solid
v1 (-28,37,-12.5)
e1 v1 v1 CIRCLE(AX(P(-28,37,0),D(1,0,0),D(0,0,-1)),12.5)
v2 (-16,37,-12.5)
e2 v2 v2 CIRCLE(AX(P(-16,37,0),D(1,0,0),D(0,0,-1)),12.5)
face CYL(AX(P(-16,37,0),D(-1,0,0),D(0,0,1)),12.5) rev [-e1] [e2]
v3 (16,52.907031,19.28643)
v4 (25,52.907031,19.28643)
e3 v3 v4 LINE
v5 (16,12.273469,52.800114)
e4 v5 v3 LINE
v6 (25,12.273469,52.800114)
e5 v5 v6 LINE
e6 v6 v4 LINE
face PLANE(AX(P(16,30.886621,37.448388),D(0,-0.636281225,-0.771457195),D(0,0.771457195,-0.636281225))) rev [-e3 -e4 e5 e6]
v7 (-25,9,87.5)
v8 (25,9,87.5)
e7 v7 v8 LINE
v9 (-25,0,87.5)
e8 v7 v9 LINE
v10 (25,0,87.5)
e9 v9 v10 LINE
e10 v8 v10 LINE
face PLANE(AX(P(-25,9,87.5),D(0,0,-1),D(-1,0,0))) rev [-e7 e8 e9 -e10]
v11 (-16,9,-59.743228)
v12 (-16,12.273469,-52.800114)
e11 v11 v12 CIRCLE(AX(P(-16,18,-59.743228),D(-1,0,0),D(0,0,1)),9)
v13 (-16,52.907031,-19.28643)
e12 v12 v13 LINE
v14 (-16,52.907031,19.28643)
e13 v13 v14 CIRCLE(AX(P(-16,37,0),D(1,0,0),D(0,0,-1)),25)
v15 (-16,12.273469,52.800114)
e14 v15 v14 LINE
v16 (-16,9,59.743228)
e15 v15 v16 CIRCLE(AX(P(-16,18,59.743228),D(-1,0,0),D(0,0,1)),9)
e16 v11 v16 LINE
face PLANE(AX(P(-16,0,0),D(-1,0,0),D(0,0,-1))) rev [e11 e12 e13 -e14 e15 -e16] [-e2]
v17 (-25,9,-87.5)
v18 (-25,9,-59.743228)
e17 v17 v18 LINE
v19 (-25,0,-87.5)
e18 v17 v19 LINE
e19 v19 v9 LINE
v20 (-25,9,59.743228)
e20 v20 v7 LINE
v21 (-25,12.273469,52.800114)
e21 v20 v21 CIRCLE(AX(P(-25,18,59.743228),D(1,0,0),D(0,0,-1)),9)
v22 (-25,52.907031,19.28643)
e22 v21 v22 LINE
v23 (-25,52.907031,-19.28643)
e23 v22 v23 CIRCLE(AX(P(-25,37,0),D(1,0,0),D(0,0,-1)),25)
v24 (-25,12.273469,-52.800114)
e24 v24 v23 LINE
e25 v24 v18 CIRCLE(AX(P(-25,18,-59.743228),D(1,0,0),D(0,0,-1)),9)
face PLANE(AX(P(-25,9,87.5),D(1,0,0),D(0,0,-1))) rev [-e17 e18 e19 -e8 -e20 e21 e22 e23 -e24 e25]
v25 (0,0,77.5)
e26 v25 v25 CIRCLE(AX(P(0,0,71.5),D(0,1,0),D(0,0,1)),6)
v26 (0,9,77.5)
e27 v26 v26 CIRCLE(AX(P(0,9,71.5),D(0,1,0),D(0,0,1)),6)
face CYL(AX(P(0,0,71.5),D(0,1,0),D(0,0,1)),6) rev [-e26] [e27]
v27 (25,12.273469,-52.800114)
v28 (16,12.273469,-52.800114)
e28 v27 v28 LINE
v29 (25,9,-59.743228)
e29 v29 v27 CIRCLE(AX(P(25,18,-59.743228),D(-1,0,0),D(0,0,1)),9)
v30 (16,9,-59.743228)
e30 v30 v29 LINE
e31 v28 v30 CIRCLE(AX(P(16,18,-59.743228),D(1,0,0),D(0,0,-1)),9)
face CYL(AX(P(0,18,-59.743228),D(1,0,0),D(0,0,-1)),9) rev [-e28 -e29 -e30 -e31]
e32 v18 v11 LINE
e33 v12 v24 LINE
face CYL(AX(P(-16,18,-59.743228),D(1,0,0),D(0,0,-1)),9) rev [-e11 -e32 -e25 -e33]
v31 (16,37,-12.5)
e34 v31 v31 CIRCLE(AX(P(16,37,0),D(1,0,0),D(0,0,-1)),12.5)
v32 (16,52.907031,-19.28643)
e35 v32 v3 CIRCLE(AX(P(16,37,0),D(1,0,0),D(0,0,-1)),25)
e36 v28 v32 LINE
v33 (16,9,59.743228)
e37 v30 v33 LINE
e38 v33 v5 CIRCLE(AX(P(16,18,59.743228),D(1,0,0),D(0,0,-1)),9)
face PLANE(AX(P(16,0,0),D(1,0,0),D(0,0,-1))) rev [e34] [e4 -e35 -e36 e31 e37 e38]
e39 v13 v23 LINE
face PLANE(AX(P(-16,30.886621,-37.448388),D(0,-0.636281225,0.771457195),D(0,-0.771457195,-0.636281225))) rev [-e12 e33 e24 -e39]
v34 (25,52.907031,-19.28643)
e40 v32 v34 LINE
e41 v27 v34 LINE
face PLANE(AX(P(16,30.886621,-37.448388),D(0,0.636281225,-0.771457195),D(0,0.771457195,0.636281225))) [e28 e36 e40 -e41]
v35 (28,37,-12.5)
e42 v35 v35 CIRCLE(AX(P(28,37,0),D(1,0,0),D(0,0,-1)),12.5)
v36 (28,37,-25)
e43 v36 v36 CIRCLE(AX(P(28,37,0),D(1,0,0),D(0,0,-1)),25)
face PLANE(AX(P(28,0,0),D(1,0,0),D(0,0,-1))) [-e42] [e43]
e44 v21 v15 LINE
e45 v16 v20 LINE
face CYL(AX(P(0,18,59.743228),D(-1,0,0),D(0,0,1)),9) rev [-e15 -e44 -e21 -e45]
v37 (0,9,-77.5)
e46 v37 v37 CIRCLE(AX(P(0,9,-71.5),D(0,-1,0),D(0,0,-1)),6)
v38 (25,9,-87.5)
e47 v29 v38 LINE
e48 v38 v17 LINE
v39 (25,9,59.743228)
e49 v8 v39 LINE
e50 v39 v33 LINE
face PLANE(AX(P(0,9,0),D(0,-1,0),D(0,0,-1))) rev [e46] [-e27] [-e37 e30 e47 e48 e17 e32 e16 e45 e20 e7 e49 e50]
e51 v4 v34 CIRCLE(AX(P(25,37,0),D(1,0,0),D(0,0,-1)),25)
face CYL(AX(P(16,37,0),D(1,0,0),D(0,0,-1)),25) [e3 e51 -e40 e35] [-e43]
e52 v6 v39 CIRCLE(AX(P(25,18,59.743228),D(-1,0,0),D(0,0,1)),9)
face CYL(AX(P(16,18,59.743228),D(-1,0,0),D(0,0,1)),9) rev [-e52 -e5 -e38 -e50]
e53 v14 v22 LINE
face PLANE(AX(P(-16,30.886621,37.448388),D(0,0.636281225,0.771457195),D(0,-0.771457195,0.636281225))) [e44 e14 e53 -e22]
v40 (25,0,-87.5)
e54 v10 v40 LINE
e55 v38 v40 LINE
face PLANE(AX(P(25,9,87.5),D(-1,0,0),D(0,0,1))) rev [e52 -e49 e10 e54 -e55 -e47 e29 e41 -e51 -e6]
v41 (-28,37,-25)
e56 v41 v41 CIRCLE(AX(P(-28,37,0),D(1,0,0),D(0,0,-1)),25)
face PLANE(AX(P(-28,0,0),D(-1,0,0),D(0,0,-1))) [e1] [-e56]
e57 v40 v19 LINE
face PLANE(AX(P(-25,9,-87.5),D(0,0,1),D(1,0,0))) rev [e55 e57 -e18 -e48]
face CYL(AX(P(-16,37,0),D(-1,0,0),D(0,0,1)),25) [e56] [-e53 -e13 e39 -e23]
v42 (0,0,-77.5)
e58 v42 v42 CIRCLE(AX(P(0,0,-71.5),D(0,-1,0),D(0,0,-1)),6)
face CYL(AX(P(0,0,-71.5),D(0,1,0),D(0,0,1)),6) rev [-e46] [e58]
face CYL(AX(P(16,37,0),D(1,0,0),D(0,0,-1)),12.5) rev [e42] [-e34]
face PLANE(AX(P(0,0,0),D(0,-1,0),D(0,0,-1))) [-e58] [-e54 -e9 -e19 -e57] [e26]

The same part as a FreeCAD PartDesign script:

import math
import FreeCAD as App
import Part
import Sketcher
Q = App.Units.Quantity


def edges_at(feature, points):
    """Names of the edges that pass closest to the given points."""
    edges = feature.Shape.Edges
    near = lambda p: min(range(len(edges)), key=lambda i: edges[i].distToShape(Part.Vertex(*p))[0])
    return sorted({f"Edge{near(p) + 1}" for p in points})


def add_polygon(sketch, points):
    """Adds a closed chain of lines whose ends are joined by coincident constraints."""
    first, n = sketch.GeometryCount, len(points)
    for a, b in zip(points, points[1:] + points[:1]):
        sketch.addGeometry(Part.LineSegment(App.Vector(*a, 0), App.Vector(*b, 0)), False)
    for i in range(n):
        sketch.addConstraint(Sketcher.Constraint("Coincident", first + i, 2, first + (i + 1) % n, 1))

doc = App.newDocument("Part")
body = doc.addObject("PartDesign::Body", "Body")

sketch1 = body.newObject("Sketcher::SketchObject", "Sketch")
sketch1.AttachmentSupport = (doc.getObject("XZ_Plane"), [""])
sketch1.MapMode = "FlatFace"
add_polygon(sketch1, [(-25, -88), (-25, 88), (25, 88), (25, -88)])
sketch1.addConstraint([
    Sketcher.Constraint("Vertical", 0),
    Sketcher.Constraint("Horizontal", 1),
    Sketcher.Constraint("Vertical", 2),
    Sketcher.Constraint("Horizontal", 3),
    Sketcher.Constraint("Symmetric", 0, 2, 2, 2, -1, 1),
    Sketcher.Constraint("DistanceX", 1, 1, 1, 2, Q("50 mm")),
    Sketcher.Constraint("DistanceY", 0, 1, 0, 2, Q("175 mm")),
])
pad1 = body.newObject("PartDesign::Pad", "Pad")
pad1.Profile = sketch1
pad1.Length = 9
pad1.Reversed = True

sketch2 = body.newObject("Sketcher::SketchObject", "Sketch001")
sketch2.AttachmentSupport = (doc.getObject("XZ_Plane"), [""])
sketch2.MapMode = "FlatFace"
sketch2.AttachmentOffset = App.Placement(App.Vector(0, 0, -9), App.Rotation())
sketch2.addGeometry(Part.Circle(App.Vector(0, 72, 0), App.Vector(0, 0, 1), 6), False)
sketch2.addConstraint([
    Sketcher.Constraint("PointOnObject", 0, 3, -2),
    Sketcher.Constraint("Diameter", 0, Q("12 mm")),
    Sketcher.Constraint("DistanceY", -1, 1, 0, 3, Q("71.5 mm")),
])
pocket1 = body.newObject("PartDesign::Pocket", "Pocket")
pocket1.Profile = sketch2
pocket1.Type = "ThroughAll"
pocket1.Reversed = True
doc.recompute()

mirrored = body.newObject("PartDesign::Mirrored", "Mirrored")
mirrored.Originals = [pocket1]
mirrored.MirrorPlane = (doc.getObject("XY_Plane"), [""])
body.Tip = mirrored

sketch3 = body.newObject("Sketcher::SketchObject", "Sketch002")
sketch3.AttachmentSupport = (doc.getObject("YZ_Plane"), [""])
sketch3.MapMode = "FlatFace"
sketch3.AttachmentOffset = App.Placement(App.Vector(0, 0, 25), App.Rotation())
sketch3.addGeometry([
    Part.LineSegment(App.Vector(53, 19, 0), App.Vector(9, 56, 0)),
    Part.LineSegment(App.Vector(9, 56, 0), App.Vector(9, -56, 0)),
    Part.LineSegment(App.Vector(9, -56, 0), App.Vector(53, -19, 0)),
    Part.ArcOfCircle(Part.Circle(App.Vector(37, 0, 0), App.Vector(0, 0, 1), 25), math.radians(-90), math.radians(-50)),
    Part.ArcOfCircle(Part.Circle(App.Vector(37, 0, 0), App.Vector(0, 0, 1), 25), math.radians(180), math.radians(270)),
    Part.ArcOfCircle(Part.Circle(App.Vector(37, 0, 0), App.Vector(0, 0, 1), 25), math.radians(50), math.radians(180)),
], False)
sketch3.addConstraint([
    Sketcher.Constraint("Coincident", 0, 2, 1, 1),
    Sketcher.Constraint("Coincident", 1, 2, 2, 1),
    Sketcher.Constraint("Tangent", 2, 2, 3, 2),
    Sketcher.Constraint("Tangent", 3, 1, 4, 2),
    Sketcher.Constraint("Tangent", 4, 1, 5, 2),
    Sketcher.Constraint("Tangent", 5, 1, 0, 1),
    Sketcher.Constraint("Vertical", 1),
    Sketcher.Constraint("Coincident", 5, 3, 3, 3),
    Sketcher.Constraint("Symmetric", 2, 2, 5, 1, -1),
    Sketcher.Constraint("PointOnObject", 4, 1, -1),
    Sketcher.Constraint("Vertical", 5, 3, 3, 1),
    Sketcher.Constraint("Radius", 3, Q("25 mm")),
    Sketcher.Constraint("DistanceY", 1, 2, 1, 1, Q("111 mm")),
    Sketcher.Constraint("DistanceX", -1, 1, 3, 3, Q("37 mm")),
    Sketcher.Constraint("DistanceX", -1, 1, 0, 2, Q("9 mm")),
])
pad2 = body.newObject("PartDesign::Pad", "Pad001")
pad2.Profile = sketch3
pad2.Length = 9
pad2.Reversed = True

sketch4 = body.newObject("Sketcher::SketchObject", "Sketch003")
sketch4.AttachmentSupport = (doc.getObject("YZ_Plane"), [""])
sketch4.MapMode = "FlatFace"
sketch4.AttachmentOffset = App.Placement(App.Vector(0, 0, 28), App.Rotation())
sketch4.addGeometry([
    Part.ArcOfCircle(Part.Circle(App.Vector(37, 0, 0), App.Vector(0, 0, 1), 25), math.radians(50), math.radians(180)),
    Part.ArcOfCircle(Part.Circle(App.Vector(37, 0, 0), App.Vector(0, 0, 1), 25), math.radians(180), math.radians(270)),
    Part.ArcOfCircle(Part.Circle(App.Vector(37, 0, 0), App.Vector(0, 0, 1), 25), math.radians(-90), math.radians(-50)),
    Part.ArcOfCircle(Part.Circle(App.Vector(37, 0, 0), App.Vector(0, 0, 1), 25), math.radians(-50), math.radians(0)),
    Part.ArcOfCircle(Part.Circle(App.Vector(37, 0, 0), App.Vector(0, 0, 1), 25), math.radians(0), math.radians(50)),
    Part.ArcOfCircle(Part.Circle(App.Vector(37, 0, 0), App.Vector(0, 0, 1), 12), math.radians(0), math.radians(180)),
    Part.ArcOfCircle(Part.Circle(App.Vector(37, 0, 0), App.Vector(0, 0, 1), 12), math.radians(-90), math.radians(0)),
    Part.ArcOfCircle(Part.Circle(App.Vector(37, 0, 0), App.Vector(0, 0, 1), 12), math.radians(180), math.radians(270)),
], False)
sketch4.addConstraint([
    Sketcher.Constraint("Tangent", 0, 2, 1, 1),
    Sketcher.Constraint("Tangent", 1, 2, 2, 1),
    Sketcher.Constraint("Tangent", 2, 2, 3, 1),
    Sketcher.Constraint("Tangent", 3, 2, 4, 1),
    Sketcher.Constraint("Tangent", 4, 2, 0, 1),
    Sketcher.Constraint("Tangent", 5, 1, 6, 2),
    Sketcher.Constraint("Tangent", 6, 1, 7, 2),
    Sketcher.Constraint("Tangent", 7, 1, 5, 2),
    Sketcher.Constraint("Coincident", 2, 3, 0, 3),
    Sketcher.Constraint("Coincident", 5, 3, 0, 3),
    Sketcher.Constraint("Symmetric", 2, 2, 4, 2, -1),
    Sketcher.Constraint("PointOnObject", 0, 2, -1),
    Sketcher.Constraint("PointOnObject", 3, 2, -1),
    Sketcher.Constraint("PointOnObject", 5, 1, -1),
    Sketcher.Constraint("PointOnObject", 7, 1, -1),
    Sketcher.Constraint("Vertical", 7, 3, 1, 2),
    Sketcher.Constraint("Vertical", 1, 2, 6, 1),
    Sketcher.Constraint("Radius", 0, Q("25 mm")),
    Sketcher.Constraint("Radius", 5, Q("12.5 mm")),
    Sketcher.Constraint("DistanceX", -1, 1, 0, 3, Q("37 mm")),
    Sketcher.Constraint("DistanceX", -1, 1, 2, 2, Q("52.907031 mm")),
])
pad3 = body.newObject("PartDesign::Pad", "Pad002")
pad3.Profile = sketch4
pad3.Length = 12
pad3.Reversed = True
doc.recompute()

fillet = body.newObject("PartDesign::Fillet", "Fillet")
fillet.Base = (pad3, edges_at(pad3, [(20.5, 9, -55.5), (20.5, 9, 55.5)]))
fillet.Radius = 9
doc.recompute()

mirrored2 = body.newObject("PartDesign::Mirrored", "Mirrored001")
mirrored2.Originals = [pad2, pad3]
mirrored2.MirrorPlane = (doc.getObject("YZ_Plane"), [""])
body.Tip = mirrored2
doc.recompute()

fillet2 = body.newObject("PartDesign::Fillet", "Fillet001")
fillet2.Base = (mirrored2, edges_at(mirrored2, [(-20.5, 9, -55.5), (-20.5, 9, 55.5)]))
fillet2.Radius = 9

doc.recompute()
